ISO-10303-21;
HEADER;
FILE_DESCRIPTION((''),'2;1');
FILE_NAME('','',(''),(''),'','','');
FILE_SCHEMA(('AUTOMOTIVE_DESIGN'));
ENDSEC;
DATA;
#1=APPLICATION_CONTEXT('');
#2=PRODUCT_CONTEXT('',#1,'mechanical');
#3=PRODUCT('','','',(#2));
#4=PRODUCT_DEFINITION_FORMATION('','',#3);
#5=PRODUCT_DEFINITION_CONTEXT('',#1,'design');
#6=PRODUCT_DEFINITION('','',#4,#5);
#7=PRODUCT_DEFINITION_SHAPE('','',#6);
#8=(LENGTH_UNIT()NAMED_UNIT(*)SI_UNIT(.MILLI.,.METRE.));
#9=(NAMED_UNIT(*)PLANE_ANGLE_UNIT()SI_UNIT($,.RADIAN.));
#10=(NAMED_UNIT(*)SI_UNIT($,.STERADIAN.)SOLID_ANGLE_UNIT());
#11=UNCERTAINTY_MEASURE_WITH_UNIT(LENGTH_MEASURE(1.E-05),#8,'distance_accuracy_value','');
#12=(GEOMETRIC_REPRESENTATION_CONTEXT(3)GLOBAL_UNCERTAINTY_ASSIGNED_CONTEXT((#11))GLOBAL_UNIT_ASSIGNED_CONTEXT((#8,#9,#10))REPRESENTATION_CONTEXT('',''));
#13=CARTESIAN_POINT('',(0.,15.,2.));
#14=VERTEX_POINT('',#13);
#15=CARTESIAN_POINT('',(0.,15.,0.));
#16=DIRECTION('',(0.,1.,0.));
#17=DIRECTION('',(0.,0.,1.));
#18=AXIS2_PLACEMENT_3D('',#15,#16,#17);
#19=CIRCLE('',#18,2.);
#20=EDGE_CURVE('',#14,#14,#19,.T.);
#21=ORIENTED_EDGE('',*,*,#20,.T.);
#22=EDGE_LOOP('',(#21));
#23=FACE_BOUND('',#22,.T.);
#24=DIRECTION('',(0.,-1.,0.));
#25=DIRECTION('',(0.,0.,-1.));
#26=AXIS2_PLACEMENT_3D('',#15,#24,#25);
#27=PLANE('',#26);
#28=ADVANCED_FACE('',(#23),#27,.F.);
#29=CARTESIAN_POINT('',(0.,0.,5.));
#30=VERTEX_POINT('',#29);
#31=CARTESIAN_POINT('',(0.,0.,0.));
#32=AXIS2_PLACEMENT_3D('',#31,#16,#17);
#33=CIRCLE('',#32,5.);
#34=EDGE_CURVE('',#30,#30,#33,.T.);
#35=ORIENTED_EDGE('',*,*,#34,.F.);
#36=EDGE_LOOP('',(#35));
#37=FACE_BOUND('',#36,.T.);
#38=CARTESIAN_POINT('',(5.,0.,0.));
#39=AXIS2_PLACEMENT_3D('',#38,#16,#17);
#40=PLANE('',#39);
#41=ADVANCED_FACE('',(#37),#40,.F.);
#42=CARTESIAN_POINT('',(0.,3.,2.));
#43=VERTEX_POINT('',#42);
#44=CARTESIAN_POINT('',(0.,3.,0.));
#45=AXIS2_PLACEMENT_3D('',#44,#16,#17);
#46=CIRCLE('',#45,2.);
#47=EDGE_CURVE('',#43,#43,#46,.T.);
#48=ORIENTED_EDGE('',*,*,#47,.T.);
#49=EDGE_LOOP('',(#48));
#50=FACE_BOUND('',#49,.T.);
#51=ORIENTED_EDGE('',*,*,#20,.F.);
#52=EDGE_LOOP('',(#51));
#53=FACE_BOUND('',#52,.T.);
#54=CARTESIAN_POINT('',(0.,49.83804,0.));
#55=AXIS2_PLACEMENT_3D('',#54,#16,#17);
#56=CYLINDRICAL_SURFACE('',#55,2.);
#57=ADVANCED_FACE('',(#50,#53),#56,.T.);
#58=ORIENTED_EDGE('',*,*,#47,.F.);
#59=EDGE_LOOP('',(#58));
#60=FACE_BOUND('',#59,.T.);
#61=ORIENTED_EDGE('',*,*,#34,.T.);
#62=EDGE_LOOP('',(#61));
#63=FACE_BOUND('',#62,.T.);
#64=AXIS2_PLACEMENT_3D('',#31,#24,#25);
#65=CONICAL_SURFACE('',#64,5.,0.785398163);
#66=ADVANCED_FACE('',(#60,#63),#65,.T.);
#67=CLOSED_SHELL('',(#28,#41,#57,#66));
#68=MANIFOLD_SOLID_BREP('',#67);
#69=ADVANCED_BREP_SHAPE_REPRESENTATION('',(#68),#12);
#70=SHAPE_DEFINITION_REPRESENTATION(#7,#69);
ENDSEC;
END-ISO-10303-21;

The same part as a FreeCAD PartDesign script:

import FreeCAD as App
import Part
import Sketcher
Q = App.Units.Quantity

doc = App.newDocument("Part")
body = doc.addObject("PartDesign::Body", "Body")

# Sketch on XY plane
sketch1 = body.newObject("Sketcher::SketchObject", "Sketch")
sketch1.AttachmentSupport = (doc.getObject("XY_Plane"), [""])
sketch1.MapMode = "FlatFace"
sketch1.addGeometry([
    Part.LineSegment(App.Vector(2, 15, 0), App.Vector(0, 15, 0)),  # 0
    Part.LineSegment(App.Vector(0, 15, 0), App.Vector(0, 0, 0)),  # 1
    Part.LineSegment(App.Vector(0, 0, 0), App.Vector(5, 0, 0)),  # 2
    Part.LineSegment(App.Vector(5, 0, 0), App.Vector(2, 3, 0)),  # 3
    Part.LineSegment(App.Vector(2, 3, 0), App.Vector(2, 15, 0)),  # 4
], False)
sketch1.addConstraint([
    Sketcher.Constraint("Coincident", 0, 2, 1, 1),
    Sketcher.Constraint("Coincident", 1, 2, 2, 1),
    Sketcher.Constraint("Coincident", 2, 2, 3, 1),
    Sketcher.Constraint("Coincident", 3, 2, 4, 1),
    Sketcher.Constraint("Coincident", 4, 2, 0, 1),
    Sketcher.Constraint("Horizontal", 0),
    Sketcher.Constraint("Vertical", 1),
    Sketcher.Constraint("Horizontal", 2),
    Sketcher.Constraint("Vertical", 4),
    Sketcher.Constraint("Coincident", 1, 2, -1, 1),
    Sketcher.Constraint("DistanceX", 0, 2, 0, 1, Q("2 mm")),
    Sketcher.Constraint("DistanceX", 2, 1, 2, 2, Q("5 mm")),
    Sketcher.Constraint("DistanceY", 1, 2, 1, 1, Q("15 mm")),
    Sketcher.Constraint("DistanceY", 4, 1, 4, 2, Q("12 mm")),
])
revolution = body.newObject("PartDesign::Revolution", "Revolution")
revolution.Profile = sketch1
revolution.ReferenceAxis = (sketch1, ["V_Axis"])
revolution.Angle = 360

doc.recompute()
